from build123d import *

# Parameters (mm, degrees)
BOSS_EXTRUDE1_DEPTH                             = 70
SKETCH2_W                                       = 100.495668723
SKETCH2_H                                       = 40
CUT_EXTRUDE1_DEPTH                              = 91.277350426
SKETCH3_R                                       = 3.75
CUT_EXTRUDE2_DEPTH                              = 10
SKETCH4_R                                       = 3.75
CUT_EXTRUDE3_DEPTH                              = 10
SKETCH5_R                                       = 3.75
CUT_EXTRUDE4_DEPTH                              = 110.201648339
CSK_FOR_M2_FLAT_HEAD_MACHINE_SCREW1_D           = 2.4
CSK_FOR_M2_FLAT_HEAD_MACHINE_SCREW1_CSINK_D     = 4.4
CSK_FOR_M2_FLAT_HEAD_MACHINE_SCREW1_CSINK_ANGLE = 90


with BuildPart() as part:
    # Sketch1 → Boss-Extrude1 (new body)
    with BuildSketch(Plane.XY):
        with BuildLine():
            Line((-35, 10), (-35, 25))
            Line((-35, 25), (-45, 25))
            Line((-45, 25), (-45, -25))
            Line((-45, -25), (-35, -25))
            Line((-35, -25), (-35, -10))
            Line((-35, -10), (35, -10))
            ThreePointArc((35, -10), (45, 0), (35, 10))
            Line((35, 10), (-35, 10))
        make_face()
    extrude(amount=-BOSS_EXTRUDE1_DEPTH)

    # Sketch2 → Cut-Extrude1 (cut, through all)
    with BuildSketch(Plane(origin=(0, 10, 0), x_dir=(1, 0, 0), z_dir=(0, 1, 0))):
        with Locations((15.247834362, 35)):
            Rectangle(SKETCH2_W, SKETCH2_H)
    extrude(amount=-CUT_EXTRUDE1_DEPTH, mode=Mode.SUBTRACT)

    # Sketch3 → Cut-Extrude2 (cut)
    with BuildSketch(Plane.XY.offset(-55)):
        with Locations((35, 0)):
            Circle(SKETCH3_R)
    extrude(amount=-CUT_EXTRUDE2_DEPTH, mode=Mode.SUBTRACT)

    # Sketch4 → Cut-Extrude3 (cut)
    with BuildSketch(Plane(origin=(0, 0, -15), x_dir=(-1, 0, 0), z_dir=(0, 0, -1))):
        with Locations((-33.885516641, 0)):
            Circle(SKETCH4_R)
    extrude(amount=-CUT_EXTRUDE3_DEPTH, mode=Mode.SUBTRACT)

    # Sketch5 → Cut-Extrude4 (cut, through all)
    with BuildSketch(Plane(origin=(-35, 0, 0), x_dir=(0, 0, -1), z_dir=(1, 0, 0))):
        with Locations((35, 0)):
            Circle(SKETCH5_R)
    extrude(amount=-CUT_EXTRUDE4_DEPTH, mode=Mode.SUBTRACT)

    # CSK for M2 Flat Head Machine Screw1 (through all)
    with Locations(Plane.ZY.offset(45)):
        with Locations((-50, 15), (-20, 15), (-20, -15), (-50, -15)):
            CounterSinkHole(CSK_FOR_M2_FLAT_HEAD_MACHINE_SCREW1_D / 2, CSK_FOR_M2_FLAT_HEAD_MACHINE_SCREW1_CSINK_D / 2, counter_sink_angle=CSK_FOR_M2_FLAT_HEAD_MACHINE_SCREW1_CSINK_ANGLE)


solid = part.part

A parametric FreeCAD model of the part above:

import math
import FreeCAD as App
import Part
import Sketcher

V = App.Vector

doc = App.newDocument("Part")
body = doc.addObject("PartDesign::Body", "Body")

# Sketch on XY plane
sketch1 = body.newObject("Sketcher::SketchObject", "Sketch")
sketch1.AttachmentSupport = (doc.getObject("XY_Plane"), [""])
sketch1.MapMode = "FlatFace"
sketch1.addGeometry(Part.LineSegment(V(-35, 10, 0), V(-35, 25, 0)), False)
sketch1.addGeometry(Part.LineSegment(V(-35, 25, 0), V(-45, 25, 0)), False)
sketch1.addGeometry(Part.LineSegment(V(-45, 25, 0), V(-45, -25, 0)), False)
sketch1.addGeometry(Part.LineSegment(V(-45, -25, 0), V(-35, -25, 0)), False)
sketch1.addGeometry(Part.LineSegment(V(-35, -25, 0), V(-35, -10, 0)), False)
sketch1.addGeometry(Part.LineSegment(V(-35, -10, 0), V(35, -10, 0)), False)
sketch1.addGeometry(Part.ArcOfCircle(Part.Circle(V(35, 0, 0), V(0, 0, 1), 10), math.radians(-90), math.radians(90)), False)
sketch1.addGeometry(Part.LineSegment(V(35, 10, 0), V(-35, 10, 0)), False)
sketch1.addConstraint(Sketcher.Constraint("Coincident", 0, 2, 1, 1))
sketch1.addConstraint(Sketcher.Constraint("Coincident", 1, 2, 2, 1))
sketch1.addConstraint(Sketcher.Constraint("Coincident", 2, 2, 3, 1))
sketch1.addConstraint(Sketcher.Constraint("Coincident", 3, 2, 4, 1))
sketch1.addConstraint(Sketcher.Constraint("Coincident", 4, 2, 5, 1))
sketch1.addConstraint(Sketcher.Constraint("Tangent", 5, 2, 6, 1))
sketch1.addConstraint(Sketcher.Constraint("Tangent", 6, 2, 7, 1))
sketch1.addConstraint(Sketcher.Constraint("Coincident", 7, 2, 0, 1))
sketch1.addConstraint(Sketcher.Constraint("Vertical", 0))
sketch1.addConstraint(Sketcher.Constraint("Horizontal", 1))
sketch1.addConstraint(Sketcher.Constraint("Vertical", 2))
sketch1.addConstraint(Sketcher.Constraint("Horizontal", 3))
sketch1.addConstraint(Sketcher.Constraint("Vertical", 4))
sketch1.addConstraint(Sketcher.Constraint("Horizontal", 5))
sketch1.addConstraint(Sketcher.Constraint("Horizontal", 7))
sketch1.addConstraint(Sketcher.Constraint("Symmetric", 4, 2, 6, 2, -1, 1))
sketch1.addConstraint(Sketcher.Constraint("Symmetric", 0, 2, 3, 2, -1))
sketch1.addConstraint(Sketcher.Constraint("Radius", 6, 10.0))
sketch1.addConstraint(Sketcher.Constraint("DistanceX", 1, 2, 1, 1, 10.0))
sketch1.addConstraint(Sketcher.Constraint("DistanceX", 5, 1, 5, 2, 70.0))
sketch1.addConstraint(Sketcher.Constraint("DistanceY", 0, 1, 0, 2, 15.0))
pad1 = body.newObject("PartDesign::Pad", "Pad")
pad1.Profile = sketch1
pad1.Length = 70
pad1.Reversed = True

# Sketch on XZ plane
sketch2 = body.newObject("Sketcher::SketchObject", "Sketch001")
sketch2.AttachmentSupport = (doc.getObject("XZ_Plane"), [""])
sketch2.MapMode = "FlatFace"
sketch2.AttachmentOffset = App.Placement(V(0, 0, -10), App.Rotation())
sketch2.addGeometry(Part.LineSegment(V(-35, -55, 0), V(-35, -15, 0)), False)
sketch2.addGeometry(Part.LineSegment(V(-35, -15, 0), V(65, -15, 0)), False)
sketch2.addGeometry(Part.LineSegment(V(65, -15, 0), V(65, -55, 0)), False)
sketch2.addGeometry(Part.LineSegment(V(65, -55, 0), V(-35, -55, 0)), False)
sketch2.addConstraint(Sketcher.Constraint("Coincident", 0, 2, 1, 1))
sketch2.addConstraint(Sketcher.Constraint("Coincident", 1, 2, 2, 1))
sketch2.addConstraint(Sketcher.Constraint("Coincident", 2, 2, 3, 1))
sketch2.addConstraint(Sketcher.Constraint("Coincident", 3, 2, 0, 1))
sketch2.addConstraint(Sketcher.Constraint("Vertical", 0))
sketch2.addConstraint(Sketcher.Constraint("Horizontal", 1))
sketch2.addConstraint(Sketcher.Constraint("Vertical", 2))
sketch2.addConstraint(Sketcher.Constraint("Horizontal", 3))
sketch2.addConstraint(Sketcher.Constraint("DistanceY", 0, 1, 0, 2, 40.0))
sketch2.addConstraint(Sketcher.Constraint("DistanceX", 0, 2, -1, 1, 35.0))
sketch2.addConstraint(Sketcher.Constraint("DistanceY", 0, 2, -1, 1, 15.0))
sketch2.addConstraint(Sketcher.Constraint("DistanceX", 1, 1, 1, 2, 100.495669))
pocket1 = body.newObject("PartDesign::Pocket", "Pocket")
pocket1.Profile = sketch2
pocket1.Type = "ThroughAll"
pocket1.Reversed = True

# Sketch on XY plane
sketch3 = body.newObject("Sketcher::SketchObject", "Sketch002")
sketch3.AttachmentSupport = (doc.getObject("XY_Plane"), [""])
sketch3.MapMode = "FlatFace"
sketch3.AttachmentOffset = App.Placement(V(0, 0, -55), App.Rotation())
sketch3.addGeometry(Part.Circle(V(35, 0, 0), V(0, 0, 1), 3.8), False)
sketch3.addConstraint(Sketcher.Constraint("PointOnObject", 0, 3, -1))
sketch3.addConstraint(Sketcher.Constraint("Diameter", 0, 7.5))
sketch3.addConstraint(Sketcher.Constraint("DistanceX", -1, 1, 0, 3, 35.0))
pocket2 = body.newObject("PartDesign::Pocket", "Pocket001")
pocket2.Profile = sketch3
pocket2.Length = 10

# Sketch on XY plane
sketch4 = body.newObject("Sketcher::SketchObject", "Sketch003")
sketch4.AttachmentSupport = (doc.getObject("XY_Plane"), [""])
sketch4.MapMode = "FlatFace"
sketch4.AttachmentOffset = App.Placement(V(0, 0, -15), App.Rotation())
sketch4.addGeometry(Part.Circle(V(33.9, 0, 0), V(0, 0, 1), 3.8), False)
sketch4.addConstraint(Sketcher.Constraint("PointOnObject", 0, 3, -1))
sketch4.addConstraint(Sketcher.Constraint("Diameter", 0, 7.5))
sketch4.addConstraint(Sketcher.Constraint("DistanceX", -1, 1, 0, 3, 33.885517))
pocket3 = body.newObject("PartDesign::Pocket", "Pocket002")
pocket3.Profile = sketch4
pocket3.Length = 10
pocket3.Reversed = True

# Sketch on YZ plane
sketch5 = body.newObject("Sketcher::SketchObject", "Sketch004")
sketch5.AttachmentSupport = (doc.getObject("YZ_Plane"), [""])
sketch5.MapMode = "FlatFace"
sketch5.AttachmentOffset = App.Placement(V(0, 0, -35), App.Rotation())
sketch5.addGeometry(Part.Circle(V(0, -35, 0), V(0, 0, 1), 3.8), False)
sketch5.addConstraint(Sketcher.Constraint("PointOnObject", 0, 3, -2))
sketch5.addConstraint(Sketcher.Constraint("Diameter", 0, 7.5))
sketch5.addConstraint(Sketcher.Constraint("DistanceY", 0, 3, -1, 1, 35.0))
pocket4 = body.newObject("PartDesign::Pocket", "Pocket003")
pocket4.Profile = sketch5
pocket4.Type = "ThroughAll"

# Sketch on YZ plane
sketch6 = body.newObject("Sketcher::SketchObject", "Sketch005")
sketch6.AttachmentSupport = (doc.getObject("YZ_Plane"), [""])
sketch6.MapMode = "FlatFace"
sketch6.AttachmentOffset = App.Placement(V(0, 0, -45), App.Rotation())
sketch6.addGeometry(Part.Circle(V(15, -50, 0), V(0, 0, 1), 1.2), False)
sketch6.addGeometry(Part.Circle(V(15, -20, 0), V(0, 0, 1), 1.2), False)
sketch6.addGeometry(Part.Circle(V(-15, -20, 0), V(0, 0, 1), 1.2), False)
sketch6.addGeometry(Part.Circle(V(-15, -50, 0), V(0, 0, 1), 1.2), False)
sketch6.addConstraint(Sketcher.Constraint("Equal", 0, 1))
sketch6.addConstraint(Sketcher.Constraint("Equal", 1, 2))
sketch6.addConstraint(Sketcher.Constraint("Equal", 2, 3))
sketch6.addConstraint(Sketcher.Constraint("Symmetric", 1, 3, 2, 3, -2))
sketch6.addConstraint(Sketcher.Constraint("Symmetric", 0, 3, 3, 3, -2))
sketch6.addConstraint(Sketcher.Constraint("Vertical", 0, 3, 1, 3))
sketch6.addConstraint(Sketcher.Constraint("Diameter", 0, 2.4))
sketch6.addConstraint(Sketcher.Constraint("DistanceX", -1, 1, 0, 3, 15.0))
sketch6.addConstraint(Sketcher.Constraint("DistanceY", 0, 3, -1, 1, 50.0))
sketch6.addConstraint(Sketcher.Constraint("DistanceY", 1, 3, -1, 1, 20.0))
doc.recompute()
hole = body.newObject("PartDesign::Hole", "Hole")
hole.Profile = sketch6
hole.ThreadType = "None"
hole.Diameter = 2.4
hole.DepthType = "ThroughAll"
hole.HoleCutType = "Countersink"
hole.HoleCutDiameter = 4.4
hole.HoleCutCountersinkAngle = 90
hole.Reversed = True

doc.recompute()
